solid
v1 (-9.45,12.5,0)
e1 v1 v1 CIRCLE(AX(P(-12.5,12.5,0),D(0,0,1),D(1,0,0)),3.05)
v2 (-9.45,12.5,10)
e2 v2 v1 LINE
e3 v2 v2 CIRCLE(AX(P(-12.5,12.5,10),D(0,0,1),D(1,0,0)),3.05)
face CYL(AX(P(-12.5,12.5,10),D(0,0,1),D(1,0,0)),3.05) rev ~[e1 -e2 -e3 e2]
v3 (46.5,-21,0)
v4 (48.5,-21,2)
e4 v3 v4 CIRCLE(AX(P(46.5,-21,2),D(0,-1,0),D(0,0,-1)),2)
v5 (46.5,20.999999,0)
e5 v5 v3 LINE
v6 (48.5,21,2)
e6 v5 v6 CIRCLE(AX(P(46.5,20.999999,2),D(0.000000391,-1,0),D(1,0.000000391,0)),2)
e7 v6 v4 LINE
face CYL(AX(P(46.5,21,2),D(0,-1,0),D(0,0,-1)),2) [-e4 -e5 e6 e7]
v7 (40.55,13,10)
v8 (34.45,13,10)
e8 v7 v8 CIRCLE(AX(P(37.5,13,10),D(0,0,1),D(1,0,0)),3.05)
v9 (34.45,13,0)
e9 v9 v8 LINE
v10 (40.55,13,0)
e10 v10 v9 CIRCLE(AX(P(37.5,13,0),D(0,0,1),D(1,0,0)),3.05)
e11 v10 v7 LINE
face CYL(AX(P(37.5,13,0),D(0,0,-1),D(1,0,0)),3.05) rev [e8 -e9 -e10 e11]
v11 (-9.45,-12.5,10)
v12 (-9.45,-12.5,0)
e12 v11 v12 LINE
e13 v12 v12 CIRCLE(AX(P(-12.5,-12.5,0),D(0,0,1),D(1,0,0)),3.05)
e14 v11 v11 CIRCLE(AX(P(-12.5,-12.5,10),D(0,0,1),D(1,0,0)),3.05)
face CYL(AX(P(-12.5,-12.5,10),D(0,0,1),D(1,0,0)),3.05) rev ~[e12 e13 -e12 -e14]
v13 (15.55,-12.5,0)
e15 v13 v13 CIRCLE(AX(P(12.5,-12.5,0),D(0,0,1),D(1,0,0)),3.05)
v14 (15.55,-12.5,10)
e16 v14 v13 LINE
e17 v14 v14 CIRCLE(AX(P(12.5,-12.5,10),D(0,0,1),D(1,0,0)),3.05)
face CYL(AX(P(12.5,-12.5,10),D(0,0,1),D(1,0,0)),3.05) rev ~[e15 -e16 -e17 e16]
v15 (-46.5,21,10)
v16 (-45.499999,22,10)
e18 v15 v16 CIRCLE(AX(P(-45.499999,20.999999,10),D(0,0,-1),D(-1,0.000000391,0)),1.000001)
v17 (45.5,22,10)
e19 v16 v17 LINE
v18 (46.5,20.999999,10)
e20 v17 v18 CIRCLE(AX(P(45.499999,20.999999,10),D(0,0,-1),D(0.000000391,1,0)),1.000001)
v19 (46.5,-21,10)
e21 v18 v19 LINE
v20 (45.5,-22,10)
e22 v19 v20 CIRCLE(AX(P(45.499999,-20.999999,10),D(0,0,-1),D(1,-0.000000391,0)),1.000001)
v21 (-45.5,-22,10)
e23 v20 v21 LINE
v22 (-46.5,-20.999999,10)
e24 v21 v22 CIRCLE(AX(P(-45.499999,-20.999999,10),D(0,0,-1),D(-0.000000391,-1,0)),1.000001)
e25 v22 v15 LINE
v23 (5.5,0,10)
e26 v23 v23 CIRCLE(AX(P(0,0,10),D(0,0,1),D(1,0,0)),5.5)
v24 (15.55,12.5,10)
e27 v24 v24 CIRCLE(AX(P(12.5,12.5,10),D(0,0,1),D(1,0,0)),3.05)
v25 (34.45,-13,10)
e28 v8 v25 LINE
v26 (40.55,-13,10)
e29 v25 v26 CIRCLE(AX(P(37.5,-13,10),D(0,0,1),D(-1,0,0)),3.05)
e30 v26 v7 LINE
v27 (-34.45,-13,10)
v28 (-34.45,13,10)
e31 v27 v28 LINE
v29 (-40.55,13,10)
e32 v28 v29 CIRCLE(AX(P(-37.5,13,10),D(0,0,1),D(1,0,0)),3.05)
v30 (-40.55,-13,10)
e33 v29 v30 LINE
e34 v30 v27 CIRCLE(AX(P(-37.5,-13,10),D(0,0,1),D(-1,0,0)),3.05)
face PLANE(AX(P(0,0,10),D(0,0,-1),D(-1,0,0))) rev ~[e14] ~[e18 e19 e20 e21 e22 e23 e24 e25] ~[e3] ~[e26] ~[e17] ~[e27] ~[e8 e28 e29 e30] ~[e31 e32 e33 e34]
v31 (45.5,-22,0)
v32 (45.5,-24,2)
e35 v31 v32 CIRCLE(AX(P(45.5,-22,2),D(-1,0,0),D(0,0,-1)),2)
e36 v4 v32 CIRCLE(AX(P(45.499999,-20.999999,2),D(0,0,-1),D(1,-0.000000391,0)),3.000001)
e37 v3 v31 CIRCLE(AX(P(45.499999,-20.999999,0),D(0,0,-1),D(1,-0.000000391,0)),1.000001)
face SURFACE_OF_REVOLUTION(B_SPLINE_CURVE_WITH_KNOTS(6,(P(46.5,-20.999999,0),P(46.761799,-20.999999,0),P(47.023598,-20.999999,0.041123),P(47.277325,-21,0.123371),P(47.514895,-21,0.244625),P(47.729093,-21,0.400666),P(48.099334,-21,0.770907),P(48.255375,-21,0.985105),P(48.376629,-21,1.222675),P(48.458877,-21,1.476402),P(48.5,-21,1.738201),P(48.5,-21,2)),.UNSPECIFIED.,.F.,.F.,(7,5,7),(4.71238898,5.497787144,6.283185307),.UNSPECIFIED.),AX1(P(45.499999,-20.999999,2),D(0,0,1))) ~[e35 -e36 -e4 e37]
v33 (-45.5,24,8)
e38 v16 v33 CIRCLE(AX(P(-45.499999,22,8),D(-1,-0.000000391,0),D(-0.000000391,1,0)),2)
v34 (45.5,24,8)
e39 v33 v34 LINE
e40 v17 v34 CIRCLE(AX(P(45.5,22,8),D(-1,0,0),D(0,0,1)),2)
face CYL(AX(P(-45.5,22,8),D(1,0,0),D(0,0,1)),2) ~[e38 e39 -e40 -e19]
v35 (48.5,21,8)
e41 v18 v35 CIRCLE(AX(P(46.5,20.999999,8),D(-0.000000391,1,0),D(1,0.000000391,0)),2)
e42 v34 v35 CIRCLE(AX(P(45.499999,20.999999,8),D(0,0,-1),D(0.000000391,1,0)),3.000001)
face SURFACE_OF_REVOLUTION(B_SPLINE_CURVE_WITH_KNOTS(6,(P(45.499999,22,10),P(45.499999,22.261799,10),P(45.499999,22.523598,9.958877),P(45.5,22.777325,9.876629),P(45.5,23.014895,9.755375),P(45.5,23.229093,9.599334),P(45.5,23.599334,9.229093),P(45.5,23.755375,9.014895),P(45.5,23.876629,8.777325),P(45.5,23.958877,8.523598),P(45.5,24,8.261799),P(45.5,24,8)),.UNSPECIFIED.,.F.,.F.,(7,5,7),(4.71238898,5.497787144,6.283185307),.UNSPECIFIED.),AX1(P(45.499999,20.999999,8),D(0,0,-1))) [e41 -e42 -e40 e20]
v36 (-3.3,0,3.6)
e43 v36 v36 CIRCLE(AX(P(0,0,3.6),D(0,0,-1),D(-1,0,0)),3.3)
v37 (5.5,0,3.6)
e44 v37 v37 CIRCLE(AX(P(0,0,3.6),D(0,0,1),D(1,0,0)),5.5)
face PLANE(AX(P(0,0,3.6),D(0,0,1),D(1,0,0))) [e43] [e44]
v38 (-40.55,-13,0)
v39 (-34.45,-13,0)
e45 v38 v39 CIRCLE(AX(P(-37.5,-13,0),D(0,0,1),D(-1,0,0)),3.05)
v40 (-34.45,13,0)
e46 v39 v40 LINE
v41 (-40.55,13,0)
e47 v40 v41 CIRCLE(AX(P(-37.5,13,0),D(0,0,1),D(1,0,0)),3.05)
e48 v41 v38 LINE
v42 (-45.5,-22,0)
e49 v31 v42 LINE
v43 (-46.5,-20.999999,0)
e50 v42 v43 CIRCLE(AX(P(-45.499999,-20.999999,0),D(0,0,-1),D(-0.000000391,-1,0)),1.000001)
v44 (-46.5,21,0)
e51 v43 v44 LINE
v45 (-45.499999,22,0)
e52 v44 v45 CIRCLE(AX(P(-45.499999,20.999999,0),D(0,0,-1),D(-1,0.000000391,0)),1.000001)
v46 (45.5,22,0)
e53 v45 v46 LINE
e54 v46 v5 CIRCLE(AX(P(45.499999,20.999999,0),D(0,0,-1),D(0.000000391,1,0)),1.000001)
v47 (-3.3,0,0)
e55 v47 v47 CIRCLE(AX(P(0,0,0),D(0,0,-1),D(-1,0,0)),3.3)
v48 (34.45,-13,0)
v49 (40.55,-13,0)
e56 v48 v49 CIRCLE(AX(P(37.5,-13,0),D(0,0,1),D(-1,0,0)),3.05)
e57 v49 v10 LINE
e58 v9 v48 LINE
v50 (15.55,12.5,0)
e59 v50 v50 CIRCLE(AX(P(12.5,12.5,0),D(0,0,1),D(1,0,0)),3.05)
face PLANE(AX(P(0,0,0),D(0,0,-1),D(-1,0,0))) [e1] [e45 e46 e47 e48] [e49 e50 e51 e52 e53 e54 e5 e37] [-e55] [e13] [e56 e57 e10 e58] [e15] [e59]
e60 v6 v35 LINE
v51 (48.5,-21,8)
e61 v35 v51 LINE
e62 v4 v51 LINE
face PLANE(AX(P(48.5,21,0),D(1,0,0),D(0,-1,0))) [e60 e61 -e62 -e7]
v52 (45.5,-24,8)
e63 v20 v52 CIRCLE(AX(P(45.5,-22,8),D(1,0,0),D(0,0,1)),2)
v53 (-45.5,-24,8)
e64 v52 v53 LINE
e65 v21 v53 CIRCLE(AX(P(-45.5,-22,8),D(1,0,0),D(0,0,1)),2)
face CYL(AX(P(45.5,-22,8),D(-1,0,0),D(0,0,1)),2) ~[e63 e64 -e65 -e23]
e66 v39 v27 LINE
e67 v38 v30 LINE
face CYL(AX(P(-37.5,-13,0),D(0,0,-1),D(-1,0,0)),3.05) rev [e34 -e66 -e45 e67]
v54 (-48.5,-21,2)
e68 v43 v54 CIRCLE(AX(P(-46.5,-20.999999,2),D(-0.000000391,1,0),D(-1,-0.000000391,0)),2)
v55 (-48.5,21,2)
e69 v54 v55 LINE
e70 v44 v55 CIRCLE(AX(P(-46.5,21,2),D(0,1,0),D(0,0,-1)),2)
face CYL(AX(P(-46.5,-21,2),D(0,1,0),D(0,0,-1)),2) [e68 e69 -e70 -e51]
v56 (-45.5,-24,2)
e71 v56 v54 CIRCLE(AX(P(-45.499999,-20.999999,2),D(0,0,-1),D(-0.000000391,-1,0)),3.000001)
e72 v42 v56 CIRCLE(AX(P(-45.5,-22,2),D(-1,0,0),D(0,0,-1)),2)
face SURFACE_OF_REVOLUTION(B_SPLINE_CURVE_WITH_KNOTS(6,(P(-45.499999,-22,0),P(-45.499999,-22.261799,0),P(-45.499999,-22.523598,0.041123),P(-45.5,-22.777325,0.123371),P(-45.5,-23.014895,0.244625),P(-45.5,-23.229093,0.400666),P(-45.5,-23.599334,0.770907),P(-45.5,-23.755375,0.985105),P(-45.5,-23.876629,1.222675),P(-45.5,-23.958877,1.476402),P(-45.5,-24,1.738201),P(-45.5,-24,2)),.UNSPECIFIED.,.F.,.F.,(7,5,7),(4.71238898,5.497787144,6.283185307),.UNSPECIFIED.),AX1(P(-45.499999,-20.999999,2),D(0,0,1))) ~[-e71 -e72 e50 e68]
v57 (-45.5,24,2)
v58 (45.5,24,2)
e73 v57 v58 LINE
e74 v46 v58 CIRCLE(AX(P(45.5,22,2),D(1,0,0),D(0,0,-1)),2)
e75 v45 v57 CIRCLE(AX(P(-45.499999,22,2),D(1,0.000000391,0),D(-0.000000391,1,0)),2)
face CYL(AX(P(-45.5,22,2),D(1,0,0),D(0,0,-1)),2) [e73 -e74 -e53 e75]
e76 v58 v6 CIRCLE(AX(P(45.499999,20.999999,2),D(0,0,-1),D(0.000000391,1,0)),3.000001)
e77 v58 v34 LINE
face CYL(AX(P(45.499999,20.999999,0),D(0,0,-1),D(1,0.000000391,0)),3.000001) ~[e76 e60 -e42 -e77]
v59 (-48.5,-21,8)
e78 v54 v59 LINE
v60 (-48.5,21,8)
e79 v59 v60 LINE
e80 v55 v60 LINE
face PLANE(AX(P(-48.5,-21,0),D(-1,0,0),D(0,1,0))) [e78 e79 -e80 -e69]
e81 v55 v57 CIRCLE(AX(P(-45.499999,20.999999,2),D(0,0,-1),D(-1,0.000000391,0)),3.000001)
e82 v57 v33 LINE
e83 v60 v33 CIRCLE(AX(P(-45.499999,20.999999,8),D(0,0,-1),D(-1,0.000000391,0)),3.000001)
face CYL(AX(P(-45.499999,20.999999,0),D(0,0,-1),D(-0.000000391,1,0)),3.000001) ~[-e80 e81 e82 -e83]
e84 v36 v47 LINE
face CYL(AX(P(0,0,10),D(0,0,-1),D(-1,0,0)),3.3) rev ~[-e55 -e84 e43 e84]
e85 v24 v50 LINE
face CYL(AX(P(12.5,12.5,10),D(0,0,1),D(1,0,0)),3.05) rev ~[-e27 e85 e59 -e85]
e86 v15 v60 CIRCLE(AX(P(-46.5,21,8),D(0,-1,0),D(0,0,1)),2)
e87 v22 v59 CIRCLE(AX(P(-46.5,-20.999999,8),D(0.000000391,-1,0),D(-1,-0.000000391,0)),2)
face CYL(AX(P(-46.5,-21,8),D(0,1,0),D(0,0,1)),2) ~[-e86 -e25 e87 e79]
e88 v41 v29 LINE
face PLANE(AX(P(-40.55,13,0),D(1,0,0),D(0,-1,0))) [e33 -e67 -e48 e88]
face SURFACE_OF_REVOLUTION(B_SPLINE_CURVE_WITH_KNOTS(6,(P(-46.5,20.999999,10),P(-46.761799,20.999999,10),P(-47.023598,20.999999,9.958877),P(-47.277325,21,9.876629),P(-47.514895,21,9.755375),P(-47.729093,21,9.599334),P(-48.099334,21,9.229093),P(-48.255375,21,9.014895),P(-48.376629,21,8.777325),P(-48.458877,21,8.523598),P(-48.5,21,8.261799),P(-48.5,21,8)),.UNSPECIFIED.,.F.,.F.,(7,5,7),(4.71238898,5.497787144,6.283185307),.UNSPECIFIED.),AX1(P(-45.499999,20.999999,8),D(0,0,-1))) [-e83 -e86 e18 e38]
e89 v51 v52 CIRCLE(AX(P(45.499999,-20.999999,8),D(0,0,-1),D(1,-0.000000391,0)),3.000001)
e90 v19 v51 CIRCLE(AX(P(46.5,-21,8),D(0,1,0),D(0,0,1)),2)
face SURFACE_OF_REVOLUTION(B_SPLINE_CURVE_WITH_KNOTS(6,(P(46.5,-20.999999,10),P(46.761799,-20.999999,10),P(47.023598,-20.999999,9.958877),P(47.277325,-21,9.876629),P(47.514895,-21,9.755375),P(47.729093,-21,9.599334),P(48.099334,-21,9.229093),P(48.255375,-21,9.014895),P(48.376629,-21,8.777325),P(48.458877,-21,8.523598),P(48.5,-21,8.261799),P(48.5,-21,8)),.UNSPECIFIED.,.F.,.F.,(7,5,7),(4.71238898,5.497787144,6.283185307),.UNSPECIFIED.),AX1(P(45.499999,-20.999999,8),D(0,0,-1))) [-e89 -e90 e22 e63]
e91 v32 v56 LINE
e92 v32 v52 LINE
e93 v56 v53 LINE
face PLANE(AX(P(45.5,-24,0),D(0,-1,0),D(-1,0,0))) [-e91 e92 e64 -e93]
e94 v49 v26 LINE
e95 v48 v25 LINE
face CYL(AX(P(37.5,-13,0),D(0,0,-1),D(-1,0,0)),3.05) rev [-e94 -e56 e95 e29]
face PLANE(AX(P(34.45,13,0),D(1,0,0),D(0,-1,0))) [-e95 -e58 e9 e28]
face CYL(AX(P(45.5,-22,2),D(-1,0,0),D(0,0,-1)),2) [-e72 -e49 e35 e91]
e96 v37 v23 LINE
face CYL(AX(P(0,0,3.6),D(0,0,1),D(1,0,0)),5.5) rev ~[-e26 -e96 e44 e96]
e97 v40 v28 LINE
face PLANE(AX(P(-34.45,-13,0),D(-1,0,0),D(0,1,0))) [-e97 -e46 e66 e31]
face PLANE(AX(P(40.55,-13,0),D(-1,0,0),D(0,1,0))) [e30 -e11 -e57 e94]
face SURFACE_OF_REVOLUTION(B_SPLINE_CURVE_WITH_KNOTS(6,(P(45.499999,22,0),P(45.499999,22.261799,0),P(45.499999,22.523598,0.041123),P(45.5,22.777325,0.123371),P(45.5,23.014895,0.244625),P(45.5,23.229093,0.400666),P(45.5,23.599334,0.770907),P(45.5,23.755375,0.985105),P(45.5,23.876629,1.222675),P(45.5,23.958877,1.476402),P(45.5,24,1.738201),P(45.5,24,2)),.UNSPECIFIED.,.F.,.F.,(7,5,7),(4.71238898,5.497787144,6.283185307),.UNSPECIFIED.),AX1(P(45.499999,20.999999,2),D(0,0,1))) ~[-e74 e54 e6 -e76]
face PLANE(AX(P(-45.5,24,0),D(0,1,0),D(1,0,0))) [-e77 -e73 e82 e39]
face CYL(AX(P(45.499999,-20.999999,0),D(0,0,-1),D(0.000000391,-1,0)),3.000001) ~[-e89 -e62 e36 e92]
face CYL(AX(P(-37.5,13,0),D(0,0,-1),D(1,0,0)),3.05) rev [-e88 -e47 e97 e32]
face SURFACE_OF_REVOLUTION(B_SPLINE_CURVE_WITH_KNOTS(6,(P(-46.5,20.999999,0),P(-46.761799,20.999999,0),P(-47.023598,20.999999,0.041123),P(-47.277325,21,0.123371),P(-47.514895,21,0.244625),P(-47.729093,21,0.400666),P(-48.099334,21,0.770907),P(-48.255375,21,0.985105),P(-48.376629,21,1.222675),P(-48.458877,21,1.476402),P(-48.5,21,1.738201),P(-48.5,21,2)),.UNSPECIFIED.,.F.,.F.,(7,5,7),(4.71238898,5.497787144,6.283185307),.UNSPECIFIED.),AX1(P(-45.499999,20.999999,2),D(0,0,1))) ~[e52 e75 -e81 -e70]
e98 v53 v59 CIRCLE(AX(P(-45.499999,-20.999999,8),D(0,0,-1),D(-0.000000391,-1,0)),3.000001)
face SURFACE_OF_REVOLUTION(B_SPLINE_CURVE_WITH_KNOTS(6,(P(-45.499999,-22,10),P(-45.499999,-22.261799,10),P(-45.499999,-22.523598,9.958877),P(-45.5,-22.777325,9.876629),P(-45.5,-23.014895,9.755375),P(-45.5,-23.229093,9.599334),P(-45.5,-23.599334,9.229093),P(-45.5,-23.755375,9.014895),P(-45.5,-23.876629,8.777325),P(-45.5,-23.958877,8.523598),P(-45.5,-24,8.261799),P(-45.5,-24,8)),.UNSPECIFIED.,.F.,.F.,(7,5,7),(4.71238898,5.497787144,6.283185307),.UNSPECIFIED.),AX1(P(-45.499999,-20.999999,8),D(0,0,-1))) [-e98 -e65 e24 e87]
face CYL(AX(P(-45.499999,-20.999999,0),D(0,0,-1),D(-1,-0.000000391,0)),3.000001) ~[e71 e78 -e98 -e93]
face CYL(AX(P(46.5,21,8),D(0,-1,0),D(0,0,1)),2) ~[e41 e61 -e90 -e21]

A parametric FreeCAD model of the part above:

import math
import FreeCAD as App
import Part
import Sketcher


def edges_at(feature, points):
    """Names of the edges that pass closest to the given points."""
    edges = feature.Shape.Edges
    near = lambda p: min(range(len(edges)), key=lambda i: edges[i].distToShape(Part.Vertex(*p))[0])
    return sorted({f"Edge{near(p) + 1}" for p in points})

doc = App.newDocument("Part")
body = doc.addObject("PartDesign::Body", "Body")

# Sketch on XY plane
sketch1 = body.newObject("Sketcher::SketchObject", "Sketch")
sketch1.AttachmentSupport = (doc.getObject("XY_Plane"), [""])
sketch1.MapMode = "FlatFace"
sketch1.addGeometry([
    Part.LineSegment(App.Vector(45.5, 24, 0), App.Vector(-45.5, 24, 0)),  # 0
    Part.ArcOfCircle(Part.Circle(App.Vector(-45.5, 21, 0), App.Vector(0, 0, 1), 3), math.radians(90), math.radians(180)),  # 1
    Part.LineSegment(App.Vector(-48.5, 21, 0), App.Vector(-48.5, -21, 0)),  # 2
    Part.ArcOfCircle(Part.Circle(App.Vector(-45.5, -21, 0), App.Vector(0, 0, 1), 3), math.radians(-180), math.radians(-90)),  # 3
    Part.LineSegment(App.Vector(-45.5, -24, 0), App.Vector(45.5, -24, 0)),  # 4
    Part.ArcOfCircle(Part.Circle(App.Vector(45.5, -21, 0), App.Vector(0, 0, 1), 3), math.radians(-90), math.radians(0)),  # 5
    Part.LineSegment(App.Vector(48.5, -21, 0), App.Vector(48.5, 21, 0)),  # 6
    Part.ArcOfCircle(Part.Circle(App.Vector(45.5, 21, 0), App.Vector(0, 0, 1), 3), math.radians(0), math.radians(90)),  # 7
    Part.LineSegment(App.Vector(40.5, 13, 0), App.Vector(40.5, -13, 0)),  # 8
    Part.ArcOfCircle(Part.Circle(App.Vector(37.5, -13, 0), App.Vector(0, 0, 1), 3), math.radians(180), math.radians(360)),  # 9
    Part.LineSegment(App.Vector(34.5, -13, 0), App.Vector(34.5, 13, 0)),  # 10
    Part.ArcOfCircle(Part.Circle(App.Vector(37.5, 13, 0), App.Vector(0, 0, 1), 3), math.radians(0), math.radians(180)),  # 11
    Part.LineSegment(App.Vector(-34.5, 13, 0), App.Vector(-34.5, -13, 0)),  # 12
    Part.ArcOfCircle(Part.Circle(App.Vector(-37.5, -13, 0), App.Vector(0, 0, 1), 3), math.radians(180), math.radians(360)),  # 13
    Part.LineSegment(App.Vector(-40.5, -13, 0), App.Vector(-40.5, 13, 0)),  # 14
    Part.ArcOfCircle(Part.Circle(App.Vector(-37.5, 13, 0), App.Vector(0, 0, 1), 3), math.radians(0), math.radians(180)),  # 15
], False)
sketch1.addConstraint([
    Sketcher.Constraint("Tangent", 0, 2, 1, 1),
    Sketcher.Constraint("Tangent", 1, 2, 2, 1),
    Sketcher.Constraint("Tangent", 2, 2, 3, 1),
    Sketcher.Constraint("Tangent", 3, 2, 4, 1),
    Sketcher.Constraint("Tangent", 4, 2, 5, 1),
    Sketcher.Constraint("Tangent", 5, 2, 6, 1),
    Sketcher.Constraint("Tangent", 6, 2, 7, 1),
    Sketcher.Constraint("Tangent", 7, 2, 0, 1),
    Sketcher.Constraint("Tangent", 8, 2, 9, 2),
    Sketcher.Constraint("Tangent", 9, 1, 10, 1),
    Sketcher.Constraint("Tangent", 10, 2, 11, 2),
    Sketcher.Constraint("Tangent", 11, 1, 8, 1),
    Sketcher.Constraint("Tangent", 12, 2, 13, 2),
    Sketcher.Constraint("Tangent", 13, 1, 14, 1),
    Sketcher.Constraint("Tangent", 14, 2, 15, 2),
    Sketcher.Constraint("Tangent", 15, 1, 12, 1),
    Sketcher.Constraint("Horizontal", 0),
    Sketcher.Constraint("Vertical", 2),
    Sketcher.Constraint("Horizontal", 4),
    Sketcher.Constraint("Vertical", 6),
    Sketcher.Constraint("Vertical", 8),
    Sketcher.Constraint("Vertical", 10),
    Sketcher.Constraint("Vertical", 12),
    Sketcher.Constraint("Vertical", 14),
    Sketcher.Constraint("Equal", 1, 3),
    Sketcher.Constraint("Equal", 3, 5),
    Sketcher.Constraint("Equal", 5, 7),
    Sketcher.Constraint("Equal", 11, 13),
    Sketcher.Constraint("Symmetric", 1, 3, 5, 3, -1, 1),
    Sketcher.Constraint("Symmetric", 11, 3, 13, 3, -1, 1),
    Sketcher.Constraint("Horizontal", 9, 3, 13, 3),
    Sketcher.Constraint("Horizontal", 11, 3, 15, 3),
    Sketcher.Constraint("Radius", 1, 3.000001),
    Sketcher.Constraint("DistanceX", 0, 2, 0, 1, 91.0),
    Sketcher.Constraint("DistanceY", 2, 2, 2, 1, 42.0),
    Sketcher.Constraint("DistanceY", 8, 2, 8, 1, 26.0),
    Sketcher.Constraint("Radius", 9, 3.05),
    Sketcher.Constraint("DistanceX", 9, 3, 5, 3, 7.999999),
])
pad1 = body.newObject("PartDesign::Pad", "Pad")
pad1.Profile = sketch1
pad1.Length = 10

# Sketch on XY plane
sketch2 = body.newObject("Sketcher::SketchObject", "Sketch001")
sketch2.AttachmentSupport = (doc.getObject("XY_Plane"), [""])
sketch2.MapMode = "FlatFace"
sketch2.AttachmentOffset = App.Placement(App.Vector(0, 0, 10), App.Rotation())
sketch2.addGeometry([
    Part.Circle(App.Vector(-12.5, 12.5, 0), App.Vector(0, 0, 1), 3),
    Part.Circle(App.Vector(12.5, 12.5, 0), App.Vector(0, 0, 1), 3),
    Part.Circle(App.Vector(-12.5, -12.5, 0), App.Vector(0, 0, 1), 3),
    Part.Circle(App.Vector(12.5, -12.5, 0), App.Vector(0, 0, 1), 3),
], False)
sketch2.addConstraint([
    Sketcher.Constraint("Equal", 0, 1),
    Sketcher.Constraint("Equal", 1, 2),
    Sketcher.Constraint("Equal", 2, 3),
    Sketcher.Constraint("Symmetric", 1, 3, 2, 3, -1, 1),
    Sketcher.Constraint("Symmetric", 0, 3, 3, 3, -1, 1),
    Sketcher.Constraint("Symmetric", 0, 3, 1, 3, -2),
    Sketcher.Constraint("Diameter", 0, 6.1),
    Sketcher.Constraint("DistanceX", 0, 3, 1, 3, 25.0),
    Sketcher.Constraint("DistanceY", 2, 3, 0, 3, 25.0),
])
pocket1 = body.newObject("PartDesign::Pocket", "Pocket")
pocket1.Profile = sketch2
pocket1.Type = "ThroughAll"
doc.recompute()

fillet = body.newObject("PartDesign::Fillet", "Fillet")
fillet.Base = (pocket1, edges_at(pocket1, [(0, -24, 10)]))
fillet.Radius = 2
doc.recompute()

fillet2 = body.newObject("PartDesign::Fillet", "Fillet001")
fillet2.Base = (fillet, edges_at(fillet, [(0, -24, 0)]))
fillet2.Radius = 2

# Sketch on XY plane
sketch3 = body.newObject("Sketcher::SketchObject", "Sketch002")
sketch3.AttachmentSupport = (doc.getObject("XY_Plane"), [""])
sketch3.MapMode = "FlatFace"
sketch3.AttachmentOffset = App.Placement(App.Vector(0, 0, 10), App.Rotation())
sketch3.addGeometry(Part.Circle(App.Vector(0, 0, 0), App.Vector(0, 0, 1), 3.3), False)
sketch3.addConstraint([
    Sketcher.Constraint("Coincident", 0, 3, -1, 1),
    Sketcher.Constraint("Diameter", 0, 6.6),
])
doc.recompute()
hole = body.newObject("PartDesign::Hole", "Hole")
hole.Profile = sketch3
hole.ThreadType = "None"
hole.Diameter = 6.6
hole.DepthType = "Dimension"
hole.Depth = 25
hole.DrillPoint = "Flat"
hole.HoleCutType = "Counterbore"
hole.HoleCutDiameter = 11
hole.HoleCutDepth = 6.4

doc.recompute()
